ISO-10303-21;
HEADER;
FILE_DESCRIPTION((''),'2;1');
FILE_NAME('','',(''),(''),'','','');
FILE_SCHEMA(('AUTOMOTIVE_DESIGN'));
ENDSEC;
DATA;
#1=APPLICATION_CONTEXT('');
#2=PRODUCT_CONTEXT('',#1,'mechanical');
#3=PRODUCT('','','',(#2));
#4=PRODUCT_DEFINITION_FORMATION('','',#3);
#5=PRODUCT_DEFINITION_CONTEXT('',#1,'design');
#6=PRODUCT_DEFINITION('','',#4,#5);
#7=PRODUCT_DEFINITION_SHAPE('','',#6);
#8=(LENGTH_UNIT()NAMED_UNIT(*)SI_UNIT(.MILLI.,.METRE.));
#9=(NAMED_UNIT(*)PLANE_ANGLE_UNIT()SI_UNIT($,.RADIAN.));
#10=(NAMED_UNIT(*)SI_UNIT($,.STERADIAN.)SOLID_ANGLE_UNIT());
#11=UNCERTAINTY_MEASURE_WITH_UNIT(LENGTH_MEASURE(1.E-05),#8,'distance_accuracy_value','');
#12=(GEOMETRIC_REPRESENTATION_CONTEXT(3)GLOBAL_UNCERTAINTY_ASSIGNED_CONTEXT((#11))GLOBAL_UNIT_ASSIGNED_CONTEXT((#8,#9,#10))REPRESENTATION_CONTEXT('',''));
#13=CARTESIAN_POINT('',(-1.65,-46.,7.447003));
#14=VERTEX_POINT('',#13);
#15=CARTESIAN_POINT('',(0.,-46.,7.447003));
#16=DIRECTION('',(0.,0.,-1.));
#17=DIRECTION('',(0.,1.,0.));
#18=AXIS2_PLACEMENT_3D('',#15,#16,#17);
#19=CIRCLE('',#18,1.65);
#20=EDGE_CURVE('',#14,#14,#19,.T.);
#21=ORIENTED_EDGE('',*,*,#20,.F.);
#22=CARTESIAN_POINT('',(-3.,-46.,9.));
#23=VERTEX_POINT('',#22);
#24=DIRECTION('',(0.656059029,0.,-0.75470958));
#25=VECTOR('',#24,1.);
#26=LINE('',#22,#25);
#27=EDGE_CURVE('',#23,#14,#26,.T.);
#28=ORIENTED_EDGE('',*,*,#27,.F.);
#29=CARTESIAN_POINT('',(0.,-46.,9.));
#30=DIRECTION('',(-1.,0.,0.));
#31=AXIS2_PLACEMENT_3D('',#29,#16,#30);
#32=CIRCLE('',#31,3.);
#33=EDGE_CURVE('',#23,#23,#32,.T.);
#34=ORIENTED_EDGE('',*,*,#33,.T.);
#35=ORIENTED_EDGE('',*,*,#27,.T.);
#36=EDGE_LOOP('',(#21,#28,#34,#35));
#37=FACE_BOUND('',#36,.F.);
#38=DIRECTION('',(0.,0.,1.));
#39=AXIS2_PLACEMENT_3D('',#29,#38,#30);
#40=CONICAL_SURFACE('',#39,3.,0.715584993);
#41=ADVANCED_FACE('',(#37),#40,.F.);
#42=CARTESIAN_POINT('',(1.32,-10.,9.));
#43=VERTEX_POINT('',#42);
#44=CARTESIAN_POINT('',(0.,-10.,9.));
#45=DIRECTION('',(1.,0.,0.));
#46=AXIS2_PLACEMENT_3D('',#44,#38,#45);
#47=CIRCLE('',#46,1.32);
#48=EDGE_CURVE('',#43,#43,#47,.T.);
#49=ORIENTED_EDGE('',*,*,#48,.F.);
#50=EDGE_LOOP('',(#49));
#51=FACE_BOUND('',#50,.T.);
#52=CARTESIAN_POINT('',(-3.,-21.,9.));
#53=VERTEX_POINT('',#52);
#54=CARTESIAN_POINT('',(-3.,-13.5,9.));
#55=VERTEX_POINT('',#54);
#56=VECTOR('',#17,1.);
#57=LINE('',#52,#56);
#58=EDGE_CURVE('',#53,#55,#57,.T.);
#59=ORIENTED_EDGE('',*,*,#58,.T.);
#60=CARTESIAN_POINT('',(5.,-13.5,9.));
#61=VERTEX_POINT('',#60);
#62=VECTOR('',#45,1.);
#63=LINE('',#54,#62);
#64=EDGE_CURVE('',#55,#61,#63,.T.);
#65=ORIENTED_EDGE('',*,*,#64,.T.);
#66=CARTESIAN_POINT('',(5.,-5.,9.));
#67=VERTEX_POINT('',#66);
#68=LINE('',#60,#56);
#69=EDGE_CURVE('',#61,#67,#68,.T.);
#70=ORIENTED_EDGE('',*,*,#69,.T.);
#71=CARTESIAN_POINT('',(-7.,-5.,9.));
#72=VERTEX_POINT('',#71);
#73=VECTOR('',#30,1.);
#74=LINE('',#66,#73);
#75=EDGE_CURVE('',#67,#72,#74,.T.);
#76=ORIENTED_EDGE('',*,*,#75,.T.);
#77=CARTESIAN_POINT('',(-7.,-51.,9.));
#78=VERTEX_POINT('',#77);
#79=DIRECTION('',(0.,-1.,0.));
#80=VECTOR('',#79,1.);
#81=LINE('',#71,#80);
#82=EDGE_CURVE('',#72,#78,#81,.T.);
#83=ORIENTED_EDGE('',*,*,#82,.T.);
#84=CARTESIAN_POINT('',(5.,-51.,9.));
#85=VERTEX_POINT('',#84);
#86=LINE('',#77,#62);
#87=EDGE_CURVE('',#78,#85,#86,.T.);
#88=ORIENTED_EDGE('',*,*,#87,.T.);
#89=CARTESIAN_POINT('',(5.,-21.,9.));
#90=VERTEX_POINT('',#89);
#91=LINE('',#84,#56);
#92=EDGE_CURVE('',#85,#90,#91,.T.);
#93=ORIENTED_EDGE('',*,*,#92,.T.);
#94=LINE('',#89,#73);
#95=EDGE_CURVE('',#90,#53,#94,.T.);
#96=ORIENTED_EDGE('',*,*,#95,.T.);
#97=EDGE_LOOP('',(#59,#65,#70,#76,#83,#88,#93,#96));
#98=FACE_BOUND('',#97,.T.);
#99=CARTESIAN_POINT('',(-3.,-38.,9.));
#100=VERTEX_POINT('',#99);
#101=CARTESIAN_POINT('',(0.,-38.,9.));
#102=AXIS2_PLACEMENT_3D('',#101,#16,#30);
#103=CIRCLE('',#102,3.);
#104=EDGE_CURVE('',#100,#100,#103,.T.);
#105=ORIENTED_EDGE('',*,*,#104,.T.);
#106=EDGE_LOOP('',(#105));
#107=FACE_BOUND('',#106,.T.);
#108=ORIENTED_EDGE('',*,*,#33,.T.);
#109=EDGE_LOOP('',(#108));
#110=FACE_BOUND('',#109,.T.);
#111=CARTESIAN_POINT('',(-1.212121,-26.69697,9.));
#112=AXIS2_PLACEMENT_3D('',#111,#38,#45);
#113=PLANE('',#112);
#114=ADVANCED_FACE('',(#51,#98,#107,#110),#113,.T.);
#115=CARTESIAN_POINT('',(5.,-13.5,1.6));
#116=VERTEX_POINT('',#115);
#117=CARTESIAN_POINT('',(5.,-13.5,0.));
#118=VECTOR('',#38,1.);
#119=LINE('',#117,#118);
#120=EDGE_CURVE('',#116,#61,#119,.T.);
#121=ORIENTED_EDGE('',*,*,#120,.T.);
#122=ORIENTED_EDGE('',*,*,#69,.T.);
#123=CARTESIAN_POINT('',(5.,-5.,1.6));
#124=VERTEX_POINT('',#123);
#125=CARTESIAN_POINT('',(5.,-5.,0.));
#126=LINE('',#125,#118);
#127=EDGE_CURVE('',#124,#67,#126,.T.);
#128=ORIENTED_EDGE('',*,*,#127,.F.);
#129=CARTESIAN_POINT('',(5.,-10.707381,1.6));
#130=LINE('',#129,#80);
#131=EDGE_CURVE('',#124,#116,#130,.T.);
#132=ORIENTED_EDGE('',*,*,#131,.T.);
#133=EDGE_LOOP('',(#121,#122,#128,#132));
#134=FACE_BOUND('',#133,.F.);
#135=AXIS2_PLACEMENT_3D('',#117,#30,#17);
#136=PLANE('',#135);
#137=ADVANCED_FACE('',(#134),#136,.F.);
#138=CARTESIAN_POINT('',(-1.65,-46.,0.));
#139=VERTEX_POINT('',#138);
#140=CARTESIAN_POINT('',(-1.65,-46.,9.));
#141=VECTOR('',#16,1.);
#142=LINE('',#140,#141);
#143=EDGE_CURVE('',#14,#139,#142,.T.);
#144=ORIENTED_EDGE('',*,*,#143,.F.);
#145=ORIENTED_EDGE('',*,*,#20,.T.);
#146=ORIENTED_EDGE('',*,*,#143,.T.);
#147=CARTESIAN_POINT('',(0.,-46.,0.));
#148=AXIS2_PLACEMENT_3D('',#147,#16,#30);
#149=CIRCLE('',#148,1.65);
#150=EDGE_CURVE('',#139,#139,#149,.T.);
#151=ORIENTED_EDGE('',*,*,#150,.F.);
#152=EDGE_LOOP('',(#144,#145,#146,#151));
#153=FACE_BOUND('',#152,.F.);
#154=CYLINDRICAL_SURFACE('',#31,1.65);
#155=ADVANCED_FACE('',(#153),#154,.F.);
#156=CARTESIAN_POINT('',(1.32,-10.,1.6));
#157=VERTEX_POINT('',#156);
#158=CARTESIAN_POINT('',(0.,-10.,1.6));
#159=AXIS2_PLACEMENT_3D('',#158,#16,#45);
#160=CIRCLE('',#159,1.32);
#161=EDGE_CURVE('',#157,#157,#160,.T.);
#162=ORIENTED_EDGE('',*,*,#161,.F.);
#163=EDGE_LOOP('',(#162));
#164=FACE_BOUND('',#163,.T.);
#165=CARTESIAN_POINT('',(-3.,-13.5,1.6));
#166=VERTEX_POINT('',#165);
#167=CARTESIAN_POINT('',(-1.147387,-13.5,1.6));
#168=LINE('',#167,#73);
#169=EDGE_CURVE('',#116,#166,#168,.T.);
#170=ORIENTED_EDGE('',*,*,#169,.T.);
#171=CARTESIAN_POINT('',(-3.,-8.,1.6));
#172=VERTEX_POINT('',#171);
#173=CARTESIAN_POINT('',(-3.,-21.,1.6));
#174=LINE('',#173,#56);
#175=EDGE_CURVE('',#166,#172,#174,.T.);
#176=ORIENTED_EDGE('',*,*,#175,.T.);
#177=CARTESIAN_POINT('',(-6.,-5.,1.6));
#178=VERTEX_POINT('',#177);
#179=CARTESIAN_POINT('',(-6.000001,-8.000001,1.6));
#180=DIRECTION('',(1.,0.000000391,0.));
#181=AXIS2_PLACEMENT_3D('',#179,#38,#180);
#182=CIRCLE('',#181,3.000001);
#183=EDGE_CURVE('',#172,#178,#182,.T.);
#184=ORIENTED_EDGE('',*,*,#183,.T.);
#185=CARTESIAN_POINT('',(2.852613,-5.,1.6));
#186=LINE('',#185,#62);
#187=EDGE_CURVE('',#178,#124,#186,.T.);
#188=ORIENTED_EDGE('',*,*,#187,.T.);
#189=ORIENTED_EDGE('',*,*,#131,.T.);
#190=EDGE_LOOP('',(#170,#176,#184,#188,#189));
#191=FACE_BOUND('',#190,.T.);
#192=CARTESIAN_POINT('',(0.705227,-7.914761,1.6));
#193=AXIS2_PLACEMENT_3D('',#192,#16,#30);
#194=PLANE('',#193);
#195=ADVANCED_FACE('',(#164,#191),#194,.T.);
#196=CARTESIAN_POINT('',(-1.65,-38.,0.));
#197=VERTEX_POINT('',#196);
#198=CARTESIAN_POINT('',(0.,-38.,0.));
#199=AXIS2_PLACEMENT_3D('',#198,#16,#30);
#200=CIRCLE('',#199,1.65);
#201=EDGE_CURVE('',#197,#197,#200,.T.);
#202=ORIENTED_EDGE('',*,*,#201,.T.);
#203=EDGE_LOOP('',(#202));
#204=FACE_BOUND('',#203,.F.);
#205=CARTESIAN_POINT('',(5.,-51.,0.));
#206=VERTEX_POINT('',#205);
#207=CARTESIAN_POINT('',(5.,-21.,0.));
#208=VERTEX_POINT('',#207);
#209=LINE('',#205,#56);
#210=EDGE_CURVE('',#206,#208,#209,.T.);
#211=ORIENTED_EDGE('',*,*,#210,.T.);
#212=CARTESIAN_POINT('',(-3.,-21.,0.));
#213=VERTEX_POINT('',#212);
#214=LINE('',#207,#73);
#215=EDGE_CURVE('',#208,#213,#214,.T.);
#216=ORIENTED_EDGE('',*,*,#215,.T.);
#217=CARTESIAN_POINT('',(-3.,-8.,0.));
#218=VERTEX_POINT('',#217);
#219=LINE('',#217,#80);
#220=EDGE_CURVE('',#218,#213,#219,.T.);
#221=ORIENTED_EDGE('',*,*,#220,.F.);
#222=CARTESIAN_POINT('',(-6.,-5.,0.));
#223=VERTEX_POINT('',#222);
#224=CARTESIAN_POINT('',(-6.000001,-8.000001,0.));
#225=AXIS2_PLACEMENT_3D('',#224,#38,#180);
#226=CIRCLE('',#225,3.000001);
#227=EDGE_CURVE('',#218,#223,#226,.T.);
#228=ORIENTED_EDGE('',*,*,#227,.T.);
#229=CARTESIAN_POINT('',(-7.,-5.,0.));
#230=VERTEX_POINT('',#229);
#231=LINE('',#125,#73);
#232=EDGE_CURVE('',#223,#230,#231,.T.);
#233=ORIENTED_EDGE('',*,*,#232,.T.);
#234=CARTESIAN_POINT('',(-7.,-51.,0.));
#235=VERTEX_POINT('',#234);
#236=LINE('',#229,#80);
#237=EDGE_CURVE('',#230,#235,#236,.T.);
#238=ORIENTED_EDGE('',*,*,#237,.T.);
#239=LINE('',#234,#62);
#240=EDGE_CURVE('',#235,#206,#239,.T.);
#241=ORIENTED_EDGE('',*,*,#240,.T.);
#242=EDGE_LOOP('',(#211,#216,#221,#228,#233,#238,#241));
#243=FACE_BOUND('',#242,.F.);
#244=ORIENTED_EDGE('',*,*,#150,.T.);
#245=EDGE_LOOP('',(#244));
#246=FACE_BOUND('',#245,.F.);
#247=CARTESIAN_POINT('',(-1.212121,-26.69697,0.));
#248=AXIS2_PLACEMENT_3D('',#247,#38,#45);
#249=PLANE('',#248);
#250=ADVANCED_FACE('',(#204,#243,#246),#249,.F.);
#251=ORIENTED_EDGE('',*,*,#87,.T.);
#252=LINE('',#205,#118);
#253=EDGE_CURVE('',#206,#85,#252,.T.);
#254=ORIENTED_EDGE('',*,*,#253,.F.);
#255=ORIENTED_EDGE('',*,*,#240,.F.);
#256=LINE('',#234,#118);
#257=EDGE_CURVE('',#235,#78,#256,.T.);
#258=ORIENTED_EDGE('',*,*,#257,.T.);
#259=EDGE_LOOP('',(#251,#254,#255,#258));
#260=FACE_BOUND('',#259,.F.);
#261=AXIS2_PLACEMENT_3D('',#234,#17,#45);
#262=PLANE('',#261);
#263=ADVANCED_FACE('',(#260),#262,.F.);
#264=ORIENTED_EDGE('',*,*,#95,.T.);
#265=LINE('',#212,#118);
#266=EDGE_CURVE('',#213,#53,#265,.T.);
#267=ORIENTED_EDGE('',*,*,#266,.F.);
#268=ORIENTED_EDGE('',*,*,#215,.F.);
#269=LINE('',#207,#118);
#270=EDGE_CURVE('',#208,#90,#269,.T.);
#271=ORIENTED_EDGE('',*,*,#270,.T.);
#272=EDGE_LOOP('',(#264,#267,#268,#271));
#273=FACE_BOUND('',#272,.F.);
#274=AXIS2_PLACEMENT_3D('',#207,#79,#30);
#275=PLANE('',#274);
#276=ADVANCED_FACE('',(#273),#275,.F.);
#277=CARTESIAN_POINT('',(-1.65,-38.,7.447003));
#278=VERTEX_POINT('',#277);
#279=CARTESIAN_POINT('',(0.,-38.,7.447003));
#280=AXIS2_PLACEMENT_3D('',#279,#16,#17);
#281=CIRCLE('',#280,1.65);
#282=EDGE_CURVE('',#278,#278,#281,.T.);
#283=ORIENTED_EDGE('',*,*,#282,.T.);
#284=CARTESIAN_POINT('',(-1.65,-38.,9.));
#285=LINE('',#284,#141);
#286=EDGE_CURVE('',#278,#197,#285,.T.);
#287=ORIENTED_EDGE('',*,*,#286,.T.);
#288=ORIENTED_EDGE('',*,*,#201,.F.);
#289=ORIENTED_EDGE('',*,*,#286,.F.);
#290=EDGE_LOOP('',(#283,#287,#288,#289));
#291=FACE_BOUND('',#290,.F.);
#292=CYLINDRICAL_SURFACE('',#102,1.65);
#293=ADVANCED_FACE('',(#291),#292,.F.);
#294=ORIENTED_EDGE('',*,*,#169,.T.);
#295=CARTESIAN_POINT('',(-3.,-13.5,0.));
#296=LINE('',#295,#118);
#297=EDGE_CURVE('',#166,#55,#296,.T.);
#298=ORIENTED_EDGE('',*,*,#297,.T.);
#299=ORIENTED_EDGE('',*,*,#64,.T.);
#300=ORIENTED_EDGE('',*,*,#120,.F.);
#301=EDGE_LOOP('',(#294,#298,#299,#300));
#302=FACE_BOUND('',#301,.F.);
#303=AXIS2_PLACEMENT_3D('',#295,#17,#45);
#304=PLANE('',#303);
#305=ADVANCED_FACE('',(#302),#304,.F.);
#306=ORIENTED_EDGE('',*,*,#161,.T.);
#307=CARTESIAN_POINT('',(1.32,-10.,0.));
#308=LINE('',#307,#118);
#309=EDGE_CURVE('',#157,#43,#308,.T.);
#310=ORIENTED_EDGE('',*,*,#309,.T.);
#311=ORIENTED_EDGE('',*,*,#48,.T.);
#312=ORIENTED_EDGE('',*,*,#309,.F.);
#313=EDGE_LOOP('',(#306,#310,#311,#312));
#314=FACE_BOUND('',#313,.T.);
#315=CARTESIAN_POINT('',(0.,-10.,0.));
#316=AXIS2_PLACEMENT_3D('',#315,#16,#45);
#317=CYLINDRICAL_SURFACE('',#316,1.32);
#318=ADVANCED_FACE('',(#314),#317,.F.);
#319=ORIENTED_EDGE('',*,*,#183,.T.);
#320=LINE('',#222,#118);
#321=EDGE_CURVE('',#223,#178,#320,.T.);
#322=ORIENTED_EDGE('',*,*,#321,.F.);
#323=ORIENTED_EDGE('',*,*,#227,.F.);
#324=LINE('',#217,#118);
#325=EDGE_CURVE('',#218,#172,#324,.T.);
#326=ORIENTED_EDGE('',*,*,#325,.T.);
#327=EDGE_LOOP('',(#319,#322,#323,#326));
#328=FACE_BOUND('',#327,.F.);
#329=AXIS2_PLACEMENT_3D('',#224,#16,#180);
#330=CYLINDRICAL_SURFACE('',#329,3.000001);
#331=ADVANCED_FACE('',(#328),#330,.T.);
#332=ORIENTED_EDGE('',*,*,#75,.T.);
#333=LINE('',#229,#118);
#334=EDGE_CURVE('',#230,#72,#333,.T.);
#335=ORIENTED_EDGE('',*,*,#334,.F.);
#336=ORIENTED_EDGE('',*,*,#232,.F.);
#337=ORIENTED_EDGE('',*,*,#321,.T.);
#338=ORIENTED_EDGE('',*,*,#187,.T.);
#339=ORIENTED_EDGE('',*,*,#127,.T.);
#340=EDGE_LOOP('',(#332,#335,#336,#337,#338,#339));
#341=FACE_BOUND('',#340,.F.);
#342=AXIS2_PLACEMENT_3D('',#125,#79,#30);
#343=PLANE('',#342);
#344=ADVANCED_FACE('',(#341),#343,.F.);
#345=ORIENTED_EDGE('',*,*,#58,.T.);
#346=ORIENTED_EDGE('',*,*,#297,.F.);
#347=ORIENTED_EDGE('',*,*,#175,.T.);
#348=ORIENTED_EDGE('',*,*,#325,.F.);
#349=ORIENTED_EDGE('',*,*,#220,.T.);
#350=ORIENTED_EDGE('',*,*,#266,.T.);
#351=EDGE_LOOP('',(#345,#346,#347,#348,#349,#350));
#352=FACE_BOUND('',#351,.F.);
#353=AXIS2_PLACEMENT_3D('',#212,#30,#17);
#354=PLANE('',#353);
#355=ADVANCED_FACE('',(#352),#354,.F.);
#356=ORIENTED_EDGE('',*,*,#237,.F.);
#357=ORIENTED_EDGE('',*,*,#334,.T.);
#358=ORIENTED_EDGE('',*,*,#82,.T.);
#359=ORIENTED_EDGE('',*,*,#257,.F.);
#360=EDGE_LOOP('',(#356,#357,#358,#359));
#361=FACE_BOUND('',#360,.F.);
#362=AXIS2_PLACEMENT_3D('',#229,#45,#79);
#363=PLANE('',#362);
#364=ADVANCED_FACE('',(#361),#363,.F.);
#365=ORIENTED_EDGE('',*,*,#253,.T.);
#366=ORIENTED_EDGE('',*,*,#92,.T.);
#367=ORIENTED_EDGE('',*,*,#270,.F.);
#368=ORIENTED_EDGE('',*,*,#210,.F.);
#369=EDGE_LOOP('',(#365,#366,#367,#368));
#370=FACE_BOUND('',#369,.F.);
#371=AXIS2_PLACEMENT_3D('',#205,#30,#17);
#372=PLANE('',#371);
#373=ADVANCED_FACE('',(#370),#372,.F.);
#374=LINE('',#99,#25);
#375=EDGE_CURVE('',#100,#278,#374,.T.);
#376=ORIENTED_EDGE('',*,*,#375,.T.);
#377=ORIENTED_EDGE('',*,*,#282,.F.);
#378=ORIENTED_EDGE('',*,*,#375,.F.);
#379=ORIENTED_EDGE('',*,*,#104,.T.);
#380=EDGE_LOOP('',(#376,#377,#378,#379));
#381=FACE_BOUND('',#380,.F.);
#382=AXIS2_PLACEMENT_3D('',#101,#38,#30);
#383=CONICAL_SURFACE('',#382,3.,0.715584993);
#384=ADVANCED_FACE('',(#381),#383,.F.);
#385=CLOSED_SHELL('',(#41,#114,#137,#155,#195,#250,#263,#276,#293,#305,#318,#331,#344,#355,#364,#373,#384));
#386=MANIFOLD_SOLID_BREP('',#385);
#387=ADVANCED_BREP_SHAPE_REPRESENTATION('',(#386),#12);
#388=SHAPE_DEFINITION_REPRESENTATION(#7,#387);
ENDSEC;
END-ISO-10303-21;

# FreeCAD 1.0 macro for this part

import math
import FreeCAD as App
import Part
import Sketcher

V = App.Vector
Q = App.Units.Quantity

doc = App.newDocument("Part")
body = doc.addObject("PartDesign::Body", "Body")

# Sketch on XY plane
sketch1 = body.newObject("Sketcher::SketchObject", "Sketch")
sketch1.AttachmentSupport = (doc.getObject("XY_Plane"), [""])
sketch1.MapMode = "FlatFace"
sketch1.addGeometry([
    Part.LineSegment(V(-7, -51, 0), V(5, -51, 0)),  # 0
    Part.LineSegment(V(5, -51, 0), V(5, -21, 0)),  # 1
    Part.LineSegment(V(5, -21, 0), V(-3, -21, 0)),  # 2
    Part.LineSegment(V(-3, -21, 0), V(-3, -13.5, 0)),  # 3
    Part.LineSegment(V(-3, -13.5, 0), V(5, -13.5, 0)),  # 4
    Part.LineSegment(V(5, -13.5, 0), V(5, -5, 0)),  # 5
    Part.LineSegment(V(5, -5, 0), V(-7, -5, 0)),  # 6
    Part.LineSegment(V(-7, -5, 0), V(-7, -51, 0)),  # 7
    Part.Circle(V(0, -10, 0), V(0, 0, 1), 1.3),  # 8
], False)
sketch1.addConstraint([
    Sketcher.Constraint("Coincident", 0, 2, 1, 1),
    Sketcher.Constraint("Coincident", 1, 2, 2, 1),
    Sketcher.Constraint("Coincident", 2, 2, 3, 1),
    Sketcher.Constraint("Coincident", 3, 2, 4, 1),
    Sketcher.Constraint("Coincident", 4, 2, 5, 1),
    Sketcher.Constraint("Coincident", 5, 2, 6, 1),
    Sketcher.Constraint("Coincident", 6, 2, 7, 1),
    Sketcher.Constraint("Coincident", 7, 2, 0, 1),
    Sketcher.Constraint("Horizontal", 0),
    Sketcher.Constraint("Vertical", 1),
    Sketcher.Constraint("Horizontal", 2),
    Sketcher.Constraint("Vertical", 3),
    Sketcher.Constraint("Horizontal", 4),
    Sketcher.Constraint("Vertical", 5),
    Sketcher.Constraint("Horizontal", 6),
    Sketcher.Constraint("Vertical", 7),
    Sketcher.Constraint("PointOnObject", 8, 3, -2),
    Sketcher.Constraint("Vertical", 1, 2, 4, 2),
    Sketcher.Constraint("Diameter", 8, Q("2.64 mm")),
    Sketcher.Constraint("DistanceX", 0, 1, 0, 2, Q("12 mm")),
    Sketcher.Constraint("DistanceX", 2, 2, 2, 1, Q("8 mm")),
    Sketcher.Constraint("DistanceY", 1, 1, 1, 2, Q("30 mm")),
    Sketcher.Constraint("DistanceY", 7, 2, 7, 1, Q("46 mm")),
    Sketcher.Constraint("DistanceY", 3, 1, 3, 2, Q("7.5 mm")),
    Sketcher.Constraint("DistanceY", 8, 3, -1, 1, Q("10 mm")),
    Sketcher.Constraint("DistanceX", -1, 1, 0, 2, Q("5 mm")),
    Sketcher.Constraint("DistanceY", 0, 2, -1, 1, Q("51 mm")),
])
pad1 = body.newObject("PartDesign::Pad", "Pad")
pad1.Profile = sketch1
pad1.Length = 9

# Sketch on XY plane
sketch2 = body.newObject("Sketcher::SketchObject", "Sketch001")
sketch2.AttachmentSupport = (doc.getObject("XY_Plane"), [""])
sketch2.MapMode = "FlatFace"
sketch2.addGeometry([
    Part.LineSegment(V(6, 4, 0), V(-6, 4, 0)),  # 0
    Part.LineSegment(V(-6, 4, 0), V(-6, -5, 0)),  # 1
    Part.ArcOfCircle(Part.Circle(V(-6, -8, 0), V(0, 0, 1), 3), math.radians(0), math.radians(90)),  # 2
    Part.LineSegment(V(-3, -8, 0), V(-3, -21, 0)),  # 3
    Part.LineSegment(V(-3, -21, 0), V(6, -21, 0)),  # 4
    Part.LineSegment(V(6, -21, 0), V(6, 4, 0)),  # 5
], False)
sketch2.addConstraint([
    Sketcher.Constraint("Coincident", 0, 2, 1, 1),
    Sketcher.Constraint("Coincident", 1, 2, 2, 2),
    Sketcher.Constraint("Tangent", 2, 1, 3, 1),
    Sketcher.Constraint("Coincident", 3, 2, 4, 1),
    Sketcher.Constraint("Coincident", 4, 2, 5, 1),
    Sketcher.Constraint("Coincident", 5, 2, 0, 1),
    Sketcher.Constraint("Horizontal", 0),
    Sketcher.Constraint("Vertical", 1),
    Sketcher.Constraint("Vertical", 3),
    Sketcher.Constraint("Horizontal", 4),
    Sketcher.Constraint("Vertical", 5),
    Sketcher.Constraint("Vertical", 2, 3, 0, 2),
    Sketcher.Constraint("Equal", 4, 1),
    Sketcher.Constraint("Radius", 2, Q("3.000001 mm")),
    Sketcher.Constraint("DistanceX", 0, 2, 0, 1, Q("12 mm")),
    Sketcher.Constraint("DistanceY", 3, 2, 3, 1, Q("13 mm")),
    Sketcher.Constraint("DistanceX", 2, 3, -1, 1, Q("6.000001 mm")),
    Sketcher.Constraint("DistanceY", 2, 3, -1, 1, Q("8.000001 mm")),
])
pocket1 = body.newObject("PartDesign::Pocket", "Pocket")
pocket1.Profile = sketch2
pocket1.Length = 1.6
pocket1.Reversed = True

# Sketch on XY plane
sketch3 = body.newObject("Sketcher::SketchObject", "Sketch002")
sketch3.AttachmentSupport = (doc.getObject("XY_Plane"), [""])
sketch3.MapMode = "FlatFace"
sketch3.AttachmentOffset = App.Placement(V(0, 0, 9), App.Rotation())
sketch3.addGeometry([
    Part.Circle(V(0, -38, 0), V(0, 0, 1), 1.6),
    Part.Circle(V(0, -46, 0), V(0, 0, 1), 1.6),
], False)
sketch3.addConstraint([
    Sketcher.Constraint("Equal", 0, 1),
    Sketcher.Constraint("PointOnObject", 0, 3, -2),
    Sketcher.Constraint("PointOnObject", 1, 3, -2),
    Sketcher.Constraint("Diameter", 0, Q("3.3 mm")),
    Sketcher.Constraint("DistanceY", 0, 3, -1, 1, Q("38 mm")),
    Sketcher.Constraint("DistanceY", 1, 3, -1, 1, Q("46 mm")),
])
doc.recompute()
hole = body.newObject("PartDesign::Hole", "Hole")
hole.Profile = sketch3
hole.ThreadType = "None"
hole.Diameter = 3.3
hole.DepthType = "ThroughAll"
hole.HoleCutType = "Countersink"
hole.HoleCutDiameter = 6
hole.HoleCutCountersinkAngle = 82

doc.recompute()
